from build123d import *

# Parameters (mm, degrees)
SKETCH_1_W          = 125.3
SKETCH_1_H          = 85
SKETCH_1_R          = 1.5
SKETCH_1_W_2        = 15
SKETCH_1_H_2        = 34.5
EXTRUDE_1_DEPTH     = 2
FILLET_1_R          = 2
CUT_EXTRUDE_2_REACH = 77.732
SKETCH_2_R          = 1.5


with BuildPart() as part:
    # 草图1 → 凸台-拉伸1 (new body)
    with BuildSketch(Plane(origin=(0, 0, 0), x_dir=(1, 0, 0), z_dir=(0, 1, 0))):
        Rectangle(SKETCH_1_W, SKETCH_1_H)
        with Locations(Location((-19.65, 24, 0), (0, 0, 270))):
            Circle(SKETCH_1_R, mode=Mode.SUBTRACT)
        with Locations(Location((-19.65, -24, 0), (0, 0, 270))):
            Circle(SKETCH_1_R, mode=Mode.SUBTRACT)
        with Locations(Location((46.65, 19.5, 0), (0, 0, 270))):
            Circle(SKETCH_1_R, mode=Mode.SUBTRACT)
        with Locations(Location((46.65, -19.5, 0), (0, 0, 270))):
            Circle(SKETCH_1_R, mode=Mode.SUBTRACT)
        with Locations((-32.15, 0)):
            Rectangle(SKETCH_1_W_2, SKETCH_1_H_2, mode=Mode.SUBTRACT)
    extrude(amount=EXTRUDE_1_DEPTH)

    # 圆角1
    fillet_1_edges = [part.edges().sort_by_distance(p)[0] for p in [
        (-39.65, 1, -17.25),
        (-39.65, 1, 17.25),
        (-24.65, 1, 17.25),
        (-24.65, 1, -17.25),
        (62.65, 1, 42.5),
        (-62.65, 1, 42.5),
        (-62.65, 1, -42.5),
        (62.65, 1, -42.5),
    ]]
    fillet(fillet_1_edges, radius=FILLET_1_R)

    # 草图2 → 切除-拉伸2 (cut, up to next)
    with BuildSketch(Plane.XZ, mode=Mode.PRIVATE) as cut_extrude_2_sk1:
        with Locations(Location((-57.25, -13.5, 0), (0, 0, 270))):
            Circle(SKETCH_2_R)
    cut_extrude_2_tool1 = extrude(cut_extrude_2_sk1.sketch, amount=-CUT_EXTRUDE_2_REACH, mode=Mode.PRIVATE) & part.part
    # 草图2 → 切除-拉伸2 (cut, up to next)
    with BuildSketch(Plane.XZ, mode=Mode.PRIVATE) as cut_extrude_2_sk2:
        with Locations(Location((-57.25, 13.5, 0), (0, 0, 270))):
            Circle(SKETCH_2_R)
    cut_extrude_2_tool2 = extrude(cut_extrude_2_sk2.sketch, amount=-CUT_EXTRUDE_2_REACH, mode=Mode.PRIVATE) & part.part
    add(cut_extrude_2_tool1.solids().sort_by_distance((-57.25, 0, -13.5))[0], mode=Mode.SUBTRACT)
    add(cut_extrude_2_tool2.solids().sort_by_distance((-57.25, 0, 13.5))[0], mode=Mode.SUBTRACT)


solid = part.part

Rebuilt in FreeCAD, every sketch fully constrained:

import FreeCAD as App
import Part
import Sketcher
from FreeCAD import Vector
Q = App.Units.Quantity


def edges_at(feature, points):
    """Names of the edges that pass closest to the given points."""
    edges = feature.Shape.Edges
    near = lambda p: min(range(len(edges)), key=lambda i: edges[i].distToShape(Part.Vertex(*p))[0])
    return sorted({f"Edge{near(p) + 1}" for p in points})


def add_polygon(sketch, points):
    """Adds a closed chain of lines whose ends are joined by coincident constraints."""
    first, n = sketch.GeometryCount, len(points)
    for a, b in zip(points, points[1:] + points[:1]):
        sketch.addGeometry(Part.LineSegment(App.Vector(*a, 0), App.Vector(*b, 0)), False)
    for i in range(n):
        sketch.addConstraint(Sketcher.Constraint("Coincident", first + i, 2, first + (i + 1) % n, 1))

doc = App.newDocument("Part")
body = doc.addObject("PartDesign::Body", "Body")

sketch1 = doc.addObject("Sketcher::SketchObject", "Sketch")
body.addObject(sketch1)
sketch1.AttachmentSupport = (doc.XZ_Plane, [""])
sketch1.MapMode = "FlatFace"
add_polygon(sketch1, [(-62.6, -42.5), (-62.6, 42.5), (62.6, 42.5), (62.6, -42.5)])
sketch1.addGeometry(Part.Circle(Vector(-19.6, 24, 0), Vector(0, 0, 1), 1.5), False)
sketch1.addGeometry(Part.Circle(Vector(46.6, 19.5, 0), Vector(0, 0, 1), 1.5), False)
add_polygon(sketch1, [(-24.6, 17.2), (-39.6, 17.2), (-39.6, -17.2), (-24.6, -17.2)])
sketch1.addGeometry(Part.Circle(Vector(-19.6, -24, 0), Vector(0, 0, 1), 1.5), False)
sketch1.addGeometry(Part.Circle(Vector(46.6, -19.5, 0), Vector(0, 0, 1), 1.5), False)
sketch1.addConstraint([
    Sketcher.Constraint("Vertical", 0),
    Sketcher.Constraint("Horizontal", 1),
    Sketcher.Constraint("Vertical", 2),
    Sketcher.Constraint("Horizontal", 3),
    Sketcher.Constraint("Horizontal", 6),
    Sketcher.Constraint("Vertical", 7),
    Sketcher.Constraint("Horizontal", 8),
    Sketcher.Constraint("Vertical", 9),
    Sketcher.Constraint("Equal", 4, 5),
    Sketcher.Constraint("Equal", 5, 10),
    Sketcher.Constraint("Equal", 10, 11),
    Sketcher.Constraint("Symmetric", 0, 2, 2, 2, -1, 1),
    Sketcher.Constraint("Symmetric", 4, 3, 10, 3, -1),
    Sketcher.Constraint("Symmetric", 5, 3, 11, 3, -1),
    Sketcher.Constraint("Diameter", 4, Q("3 mm")),
    Sketcher.Constraint("DistanceX", 6, 2, 6, 1, Q("15 mm")),
    Sketcher.Constraint("DistanceY", 0, 1, 0, 2, Q("85 mm")),
    Sketcher.Constraint("DistanceX", 1, 1, 1, 2, Q("125.3 mm")),
    Sketcher.Constraint("DistanceY", 7, 2, 7, 1, Q("34.5 mm")),
    Sketcher.Constraint("DistanceY", -1, 1, 4, 3, Q("24 mm")),
    Sketcher.Constraint("DistanceY", 11, 3, 5, 3, Q("39 mm")),
    Sketcher.Constraint("DistanceX", 0, 2, 4, 3, Q("43 mm")),
    Sketcher.Constraint("DistanceX", 5, 3, 1, 2, Q("16 mm")),
    Sketcher.Constraint("DistanceX", 6, 2, 4, 3, Q("20 mm")),
    Sketcher.Constraint("DistanceY", -1, 1, 6, 2, Q("17.25 mm")),
])
pad1 = doc.addObject("PartDesign::Pad", "Pad")
body.addObject(pad1)
pad1.Profile = sketch1
pad1.Length = 2
pad1.Reversed = True
doc.recompute()

fillet = doc.addObject("PartDesign::Fillet", "Fillet")
body.addObject(fillet)
fillet.Base = (pad1, edges_at(pad1, [
    (-39.65, 1, -17.25),
    (-39.65, 1, 17.25),
    (-24.65, 1, 17.25),
    (-24.65, 1, -17.25),
    (62.65, 1, 42.5),
    (-62.65, 1, 42.5),
    (-62.65, 1, -42.5),
    (62.65, 1, -42.5),
]))
fillet.Radius = 2

sketch2 = doc.addObject("Sketcher::SketchObject", "Sketch001")
body.addObject(sketch2)
sketch2.AttachmentSupport = (doc.XZ_Plane, [""])
sketch2.MapMode = "FlatFace"
sketch2.addGeometry(Part.Circle(Vector(-57.2, -13.5, 0), Vector(0, 0, 1), 1.5), False)
sketch2.addConstraint([
    Sketcher.Constraint("Diameter", 0, Q("3 mm")),
    Sketcher.Constraint("DistanceY", 0, 3, -1, 1, Q("13.5 mm")),
    Sketcher.Constraint("DistanceX", 0, 3, -1, 1, Q("57.25 mm")),
])
pocket1 = doc.addObject("PartDesign::Pocket", "Pocket")
body.addObject(pocket1)
pocket1.Profile = sketch2
pocket1.Type = "UpToFirst"

sketch3 = doc.addObject("Sketcher::SketchObject", "Sketch002")
body.addObject(sketch3)
sketch3.AttachmentSupport = (doc.XZ_Plane, [""])
sketch3.MapMode = "FlatFace"
sketch3.addGeometry(Part.Circle(Vector(-57.2, 13.5, 0), Vector(0, 0, 1), 1.5), False)
sketch3.addConstraint([
    Sketcher.Constraint("Diameter", 0, Q("3 mm")),
    Sketcher.Constraint("DistanceY", -1, 1, 0, 3, Q("13.5 mm")),
    Sketcher.Constraint("DistanceX", 0, 3, -1, 1, Q("57.25 mm")),
])
pocket2 = doc.addObject("PartDesign::Pocket", "Pocket001")
body.addObject(pocket2)
pocket2.Profile = sketch3
pocket2.Type = "UpToFirst"

doc.recompute()
